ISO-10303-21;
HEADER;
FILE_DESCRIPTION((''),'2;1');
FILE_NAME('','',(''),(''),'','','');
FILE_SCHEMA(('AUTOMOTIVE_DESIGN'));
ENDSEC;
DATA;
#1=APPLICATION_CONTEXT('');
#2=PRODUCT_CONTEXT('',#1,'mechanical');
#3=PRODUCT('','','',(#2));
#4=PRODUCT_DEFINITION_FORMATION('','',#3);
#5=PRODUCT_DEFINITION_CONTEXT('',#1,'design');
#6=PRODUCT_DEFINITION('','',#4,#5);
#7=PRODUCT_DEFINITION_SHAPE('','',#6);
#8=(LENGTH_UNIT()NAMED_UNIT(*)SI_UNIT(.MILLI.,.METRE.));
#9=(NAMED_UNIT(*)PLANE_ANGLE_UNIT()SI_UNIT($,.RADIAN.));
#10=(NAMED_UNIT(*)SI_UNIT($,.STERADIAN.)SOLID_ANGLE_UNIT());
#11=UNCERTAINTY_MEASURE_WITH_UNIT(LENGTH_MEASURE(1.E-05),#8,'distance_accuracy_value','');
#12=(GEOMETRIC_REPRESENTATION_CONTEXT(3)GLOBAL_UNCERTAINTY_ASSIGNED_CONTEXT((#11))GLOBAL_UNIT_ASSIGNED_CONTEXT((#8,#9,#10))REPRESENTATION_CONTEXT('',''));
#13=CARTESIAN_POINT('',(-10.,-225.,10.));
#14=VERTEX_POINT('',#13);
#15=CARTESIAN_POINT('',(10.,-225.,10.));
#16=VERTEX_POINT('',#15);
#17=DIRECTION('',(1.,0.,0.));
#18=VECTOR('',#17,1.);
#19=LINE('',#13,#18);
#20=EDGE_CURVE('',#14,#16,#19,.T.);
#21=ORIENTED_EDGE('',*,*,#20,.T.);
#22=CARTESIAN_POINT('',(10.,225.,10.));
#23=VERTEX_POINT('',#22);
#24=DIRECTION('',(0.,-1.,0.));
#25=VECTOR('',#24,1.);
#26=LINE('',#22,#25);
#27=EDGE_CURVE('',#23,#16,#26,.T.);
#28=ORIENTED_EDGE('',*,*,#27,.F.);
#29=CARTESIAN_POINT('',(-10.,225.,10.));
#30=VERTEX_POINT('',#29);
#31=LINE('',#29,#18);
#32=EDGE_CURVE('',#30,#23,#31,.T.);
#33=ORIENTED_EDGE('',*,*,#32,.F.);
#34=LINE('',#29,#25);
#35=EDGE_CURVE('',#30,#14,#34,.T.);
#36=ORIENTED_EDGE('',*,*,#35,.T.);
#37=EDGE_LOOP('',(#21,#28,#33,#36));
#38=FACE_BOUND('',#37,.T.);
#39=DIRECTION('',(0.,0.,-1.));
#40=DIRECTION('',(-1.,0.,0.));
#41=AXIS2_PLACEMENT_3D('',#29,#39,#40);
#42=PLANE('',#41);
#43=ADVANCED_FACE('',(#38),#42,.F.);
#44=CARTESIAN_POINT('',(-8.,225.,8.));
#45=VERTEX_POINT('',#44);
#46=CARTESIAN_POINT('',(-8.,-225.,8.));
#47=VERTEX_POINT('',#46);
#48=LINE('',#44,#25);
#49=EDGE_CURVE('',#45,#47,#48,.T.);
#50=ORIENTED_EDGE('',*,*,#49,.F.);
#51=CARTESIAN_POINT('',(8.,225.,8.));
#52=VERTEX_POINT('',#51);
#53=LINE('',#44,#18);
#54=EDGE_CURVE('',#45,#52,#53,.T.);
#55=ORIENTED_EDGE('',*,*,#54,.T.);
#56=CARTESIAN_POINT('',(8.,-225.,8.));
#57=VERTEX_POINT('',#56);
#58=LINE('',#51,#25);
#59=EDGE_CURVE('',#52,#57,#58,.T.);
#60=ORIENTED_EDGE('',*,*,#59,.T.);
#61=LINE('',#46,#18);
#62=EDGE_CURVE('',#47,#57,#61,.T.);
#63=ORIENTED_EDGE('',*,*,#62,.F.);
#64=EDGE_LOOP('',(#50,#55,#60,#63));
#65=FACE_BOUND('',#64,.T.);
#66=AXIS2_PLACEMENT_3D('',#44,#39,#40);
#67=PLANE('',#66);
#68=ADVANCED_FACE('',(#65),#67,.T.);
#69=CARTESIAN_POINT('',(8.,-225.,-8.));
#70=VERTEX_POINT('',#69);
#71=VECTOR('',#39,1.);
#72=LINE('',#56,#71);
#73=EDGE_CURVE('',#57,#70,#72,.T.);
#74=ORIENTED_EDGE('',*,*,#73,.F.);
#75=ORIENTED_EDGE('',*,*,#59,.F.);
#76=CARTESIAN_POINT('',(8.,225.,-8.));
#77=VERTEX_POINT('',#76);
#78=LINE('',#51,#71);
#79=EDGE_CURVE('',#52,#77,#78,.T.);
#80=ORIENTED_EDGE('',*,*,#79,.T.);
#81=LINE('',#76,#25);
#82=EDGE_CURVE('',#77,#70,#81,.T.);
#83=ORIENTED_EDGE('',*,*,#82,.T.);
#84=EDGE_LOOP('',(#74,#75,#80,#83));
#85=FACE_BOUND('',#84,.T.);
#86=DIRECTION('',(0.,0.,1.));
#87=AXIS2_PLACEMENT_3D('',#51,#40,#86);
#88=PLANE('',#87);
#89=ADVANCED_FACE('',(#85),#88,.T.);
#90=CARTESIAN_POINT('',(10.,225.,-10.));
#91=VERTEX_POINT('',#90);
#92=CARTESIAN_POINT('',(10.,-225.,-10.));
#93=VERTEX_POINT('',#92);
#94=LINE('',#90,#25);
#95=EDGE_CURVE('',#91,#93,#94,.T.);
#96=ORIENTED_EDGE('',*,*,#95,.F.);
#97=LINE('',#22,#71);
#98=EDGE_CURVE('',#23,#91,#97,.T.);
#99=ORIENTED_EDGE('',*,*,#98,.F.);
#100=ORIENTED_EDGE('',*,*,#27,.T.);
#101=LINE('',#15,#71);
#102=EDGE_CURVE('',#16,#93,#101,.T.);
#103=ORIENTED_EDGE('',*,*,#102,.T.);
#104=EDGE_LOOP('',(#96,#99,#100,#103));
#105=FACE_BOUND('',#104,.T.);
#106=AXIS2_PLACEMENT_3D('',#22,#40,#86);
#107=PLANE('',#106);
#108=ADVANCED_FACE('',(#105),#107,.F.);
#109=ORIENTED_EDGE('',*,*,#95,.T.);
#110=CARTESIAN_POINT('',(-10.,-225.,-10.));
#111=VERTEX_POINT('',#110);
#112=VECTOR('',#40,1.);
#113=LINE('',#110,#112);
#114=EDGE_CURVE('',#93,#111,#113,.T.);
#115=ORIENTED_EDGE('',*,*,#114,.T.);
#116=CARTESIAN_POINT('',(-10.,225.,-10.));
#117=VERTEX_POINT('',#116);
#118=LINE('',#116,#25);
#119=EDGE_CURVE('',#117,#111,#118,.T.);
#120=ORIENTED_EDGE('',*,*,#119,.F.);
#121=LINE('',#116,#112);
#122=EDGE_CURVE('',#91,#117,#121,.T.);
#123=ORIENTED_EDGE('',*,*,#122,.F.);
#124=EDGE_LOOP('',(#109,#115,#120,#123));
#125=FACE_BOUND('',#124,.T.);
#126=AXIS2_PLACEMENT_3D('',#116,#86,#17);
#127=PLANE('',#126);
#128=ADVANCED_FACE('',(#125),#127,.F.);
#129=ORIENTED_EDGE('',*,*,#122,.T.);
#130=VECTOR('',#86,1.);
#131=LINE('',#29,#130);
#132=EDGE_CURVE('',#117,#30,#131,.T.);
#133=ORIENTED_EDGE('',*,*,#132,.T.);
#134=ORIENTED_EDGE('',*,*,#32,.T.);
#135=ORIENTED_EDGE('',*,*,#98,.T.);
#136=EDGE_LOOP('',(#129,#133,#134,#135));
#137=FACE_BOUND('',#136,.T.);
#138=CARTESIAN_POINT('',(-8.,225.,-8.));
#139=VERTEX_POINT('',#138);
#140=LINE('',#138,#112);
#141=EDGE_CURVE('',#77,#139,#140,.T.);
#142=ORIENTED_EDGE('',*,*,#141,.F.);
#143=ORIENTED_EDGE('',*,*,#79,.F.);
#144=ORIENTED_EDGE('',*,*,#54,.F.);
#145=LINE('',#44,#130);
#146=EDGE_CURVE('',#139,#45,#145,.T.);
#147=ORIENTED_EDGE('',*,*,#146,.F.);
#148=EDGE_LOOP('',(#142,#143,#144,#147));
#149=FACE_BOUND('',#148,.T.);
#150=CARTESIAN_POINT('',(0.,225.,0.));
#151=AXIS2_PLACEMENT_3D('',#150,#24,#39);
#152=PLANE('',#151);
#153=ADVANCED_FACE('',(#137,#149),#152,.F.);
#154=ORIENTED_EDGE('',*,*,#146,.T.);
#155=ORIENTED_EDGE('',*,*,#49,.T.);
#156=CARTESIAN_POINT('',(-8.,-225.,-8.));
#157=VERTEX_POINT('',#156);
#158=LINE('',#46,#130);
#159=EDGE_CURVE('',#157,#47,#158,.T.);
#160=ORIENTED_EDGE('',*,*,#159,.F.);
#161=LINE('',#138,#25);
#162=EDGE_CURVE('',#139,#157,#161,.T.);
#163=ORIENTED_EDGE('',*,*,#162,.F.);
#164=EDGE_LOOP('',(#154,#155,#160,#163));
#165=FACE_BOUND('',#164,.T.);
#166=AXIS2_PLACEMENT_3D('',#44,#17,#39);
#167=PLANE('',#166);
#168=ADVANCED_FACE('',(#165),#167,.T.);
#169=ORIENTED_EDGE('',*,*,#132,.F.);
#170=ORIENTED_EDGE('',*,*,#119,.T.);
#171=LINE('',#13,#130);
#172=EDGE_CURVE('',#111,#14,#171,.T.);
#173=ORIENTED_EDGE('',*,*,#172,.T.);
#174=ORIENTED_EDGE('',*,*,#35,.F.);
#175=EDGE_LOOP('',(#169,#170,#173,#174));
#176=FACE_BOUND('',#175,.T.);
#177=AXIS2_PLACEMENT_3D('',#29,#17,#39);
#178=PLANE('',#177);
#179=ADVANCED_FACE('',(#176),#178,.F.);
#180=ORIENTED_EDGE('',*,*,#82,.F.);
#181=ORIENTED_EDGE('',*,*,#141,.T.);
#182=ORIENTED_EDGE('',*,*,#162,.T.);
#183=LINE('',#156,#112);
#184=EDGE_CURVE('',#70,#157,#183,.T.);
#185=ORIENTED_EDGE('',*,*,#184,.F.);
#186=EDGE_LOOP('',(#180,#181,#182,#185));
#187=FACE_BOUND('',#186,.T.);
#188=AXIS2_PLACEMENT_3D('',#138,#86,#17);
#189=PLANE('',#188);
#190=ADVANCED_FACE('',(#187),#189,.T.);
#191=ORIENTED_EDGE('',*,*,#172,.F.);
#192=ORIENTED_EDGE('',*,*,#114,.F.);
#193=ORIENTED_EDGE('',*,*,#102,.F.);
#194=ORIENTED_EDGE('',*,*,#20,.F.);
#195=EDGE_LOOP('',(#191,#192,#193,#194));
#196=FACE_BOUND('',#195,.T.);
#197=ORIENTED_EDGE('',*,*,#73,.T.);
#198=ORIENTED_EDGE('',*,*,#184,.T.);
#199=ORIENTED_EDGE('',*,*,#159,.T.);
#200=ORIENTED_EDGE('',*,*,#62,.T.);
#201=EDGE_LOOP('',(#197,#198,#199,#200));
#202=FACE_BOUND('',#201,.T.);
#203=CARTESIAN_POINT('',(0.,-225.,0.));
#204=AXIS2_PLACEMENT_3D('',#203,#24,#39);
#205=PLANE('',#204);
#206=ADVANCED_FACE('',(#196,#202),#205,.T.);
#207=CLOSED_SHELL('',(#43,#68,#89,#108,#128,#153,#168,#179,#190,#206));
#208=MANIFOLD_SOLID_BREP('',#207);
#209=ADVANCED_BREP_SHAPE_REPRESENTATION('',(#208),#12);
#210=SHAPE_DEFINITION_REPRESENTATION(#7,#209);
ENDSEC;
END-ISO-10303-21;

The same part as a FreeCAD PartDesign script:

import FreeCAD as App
import Part
import Sketcher

V = App.Vector
Q = App.Units.Quantity


def add_polygon(sketch, points):
    """Adds a closed chain of lines whose ends are joined by coincident constraints."""
    first, n = sketch.GeometryCount, len(points)
    for a, b in zip(points, points[1:] + points[:1]):
        sketch.addGeometry(Part.LineSegment(App.Vector(*a, 0), App.Vector(*b, 0)), False)
    for i in range(n):
        sketch.addConstraint(Sketcher.Constraint("Coincident", first + i, 2, first + (i + 1) % n, 1))

doc = App.newDocument("Part")
body = doc.addObject("PartDesign::Body", "Body")

# Sketch on XZ plane
sketch1 = body.newObject("Sketcher::SketchObject", "Sketch")
sketch1.AttachmentSupport = (doc.getObject("XZ_Plane"), [""])
sketch1.MapMode = "FlatFace"
add_polygon(sketch1, [(-10, -10), (-10, 10), (10, 10), (10, -10)])  # lines 0-3
add_polygon(sketch1, [(8, 8), (-8, 8), (-8, -8), (8, -8)])  # lines 4-7
sketch1.addConstraint([
    Sketcher.Constraint("Vertical", 0),
    Sketcher.Constraint("Horizontal", 1),
    Sketcher.Constraint("Vertical", 2),
    Sketcher.Constraint("Horizontal", 3),
    Sketcher.Constraint("Horizontal", 4),
    Sketcher.Constraint("Vertical", 5),
    Sketcher.Constraint("Horizontal", 6),
    Sketcher.Constraint("Vertical", 7),
    Sketcher.Constraint("Symmetric", 0, 2, 2, 2, -1, 1),
    Sketcher.Constraint("Symmetric", 4, 2, 6, 2, -1, 1),
    Sketcher.Constraint("Equal", 3, 0),
    Sketcher.Constraint("Equal", 6, 5),
    Sketcher.Constraint("DistanceX", 1, 1, 1, 2, Q("20 mm")),
    Sketcher.Constraint("DistanceX", 4, 2, 4, 1, Q("16 mm")),
])
pad1 = body.newObject("PartDesign::Pad", "Pad")
pad1.Profile = sketch1
pad1.Length = 450
pad1.Midplane = True

doc.recompute()
